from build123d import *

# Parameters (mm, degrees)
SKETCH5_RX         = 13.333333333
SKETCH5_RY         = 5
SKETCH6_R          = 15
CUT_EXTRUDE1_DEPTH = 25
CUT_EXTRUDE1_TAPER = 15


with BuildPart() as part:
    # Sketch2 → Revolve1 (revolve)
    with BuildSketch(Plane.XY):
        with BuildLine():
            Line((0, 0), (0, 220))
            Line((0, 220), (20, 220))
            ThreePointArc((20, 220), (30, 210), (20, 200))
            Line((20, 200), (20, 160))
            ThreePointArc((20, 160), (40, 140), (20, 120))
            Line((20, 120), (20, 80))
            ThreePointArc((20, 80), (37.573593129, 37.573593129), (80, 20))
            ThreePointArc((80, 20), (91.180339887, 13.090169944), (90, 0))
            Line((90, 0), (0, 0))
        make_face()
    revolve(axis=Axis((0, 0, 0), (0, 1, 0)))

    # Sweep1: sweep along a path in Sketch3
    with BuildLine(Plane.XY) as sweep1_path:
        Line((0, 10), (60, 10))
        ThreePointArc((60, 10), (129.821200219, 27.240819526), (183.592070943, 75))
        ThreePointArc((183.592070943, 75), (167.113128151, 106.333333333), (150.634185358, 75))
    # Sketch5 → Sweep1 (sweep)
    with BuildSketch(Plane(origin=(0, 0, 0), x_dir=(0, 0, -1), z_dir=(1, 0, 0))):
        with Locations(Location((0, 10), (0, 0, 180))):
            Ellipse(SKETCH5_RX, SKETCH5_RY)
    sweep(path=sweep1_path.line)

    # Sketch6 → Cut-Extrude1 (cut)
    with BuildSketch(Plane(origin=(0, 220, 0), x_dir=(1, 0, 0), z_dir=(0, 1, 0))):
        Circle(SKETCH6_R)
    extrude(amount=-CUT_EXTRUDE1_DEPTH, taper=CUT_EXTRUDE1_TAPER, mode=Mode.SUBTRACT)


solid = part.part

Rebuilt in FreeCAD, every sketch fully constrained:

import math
import FreeCAD as App
import Part
import Sketcher
from FreeCAD import Vector

doc = App.newDocument("Part")
body = doc.addObject("PartDesign::Body", "Body")

# Sketch on XY plane
sketch1 = body.newObject("Sketcher::SketchObject", "Sketch")
sketch1.AttachmentSupport = (doc.getObject("XY_Plane"), [""])
sketch1.MapMode = "FlatFace"
sketch1.addGeometry([
    Part.LineSegment(Vector(0, 220, 0), Vector(0, 0, 0)),  # 0
    Part.LineSegment(Vector(0, 0, 0), Vector(90, 0, 0)),  # 1
    Part.ArcOfCircle(Part.Circle(Vector(80, 8, 0), Vector(0, 0, 1), 12), math.radians(-37), math.radians(90)),  # 2
    Part.ArcOfCircle(Part.Circle(Vector(80, 80, 0), Vector(0, 0, 1), 60), math.radians(-180), math.radians(-90)),  # 3
    Part.LineSegment(Vector(20, 80, 0), Vector(20, 120, 0)),  # 4
    Part.ArcOfCircle(Part.Circle(Vector(20, 140, 0), Vector(0, 0, 1), 20), math.radians(-90), math.radians(90)),  # 5
    Part.LineSegment(Vector(20, 160, 0), Vector(20, 200, 0)),  # 6
    Part.ArcOfCircle(Part.Circle(Vector(20, 210, 0), Vector(0, 0, 1), 10), math.radians(-90), math.radians(90)),  # 7
    Part.LineSegment(Vector(20, 220, 0), Vector(0, 220, 0)),  # 8
], False)
sketch1.addConstraint([
    Sketcher.Constraint("Coincident", 0, 2, 1, 1),
    Sketcher.Constraint("Coincident", 1, 2, 2, 1),
    Sketcher.Constraint("Tangent", 2, 2, 3, 2),
    Sketcher.Constraint("Tangent", 3, 1, 4, 1),
    Sketcher.Constraint("Coincident", 4, 2, 5, 1),
    Sketcher.Constraint("Coincident", 5, 2, 6, 1),
    Sketcher.Constraint("Coincident", 6, 2, 7, 1),
    Sketcher.Constraint("Tangent", 7, 2, 8, 1),
    Sketcher.Constraint("Coincident", 8, 2, 0, 1),
    Sketcher.Constraint("Vertical", 0),
    Sketcher.Constraint("Horizontal", 1),
    Sketcher.Constraint("Vertical", 4),
    Sketcher.Constraint("Vertical", 6),
    Sketcher.Constraint("Horizontal", 8),
    Sketcher.Constraint("Coincident", 0, 2, -1, 1),
    Sketcher.Constraint("Vertical", 2, 3, 3, 3),
    Sketcher.Constraint("Vertical", 5, 3, 7, 3),
    Sketcher.Constraint("Vertical", 7, 3, 3, 1),
    Sketcher.Constraint("Vertical", 4, 2, 5, 2),
    Sketcher.Constraint("Equal", 4, 6),
    Sketcher.Constraint("Radius", 3, 60.0),
    Sketcher.Constraint("Radius", 5, 20.0),
    Sketcher.Constraint("Radius", 7, 10.0),
    Sketcher.Constraint("Radius", 2, 12.5),
    Sketcher.Constraint("DistanceX", 1, 1, 1, 2, 90.0),
    Sketcher.Constraint("DistanceX", 8, 2, 8, 1, 20.0),
    Sketcher.Constraint("DistanceY", 0, 2, 0, 1, 220.0),
])
revolution = body.newObject("PartDesign::Revolution", "Revolution")
revolution.Profile = sketch1
revolution.ReferenceAxis = (sketch1, ["V_Axis"])
revolution.Angle = 360

# Sketch on YZ plane
sketch2 = body.newObject("Sketcher::SketchObject", "Sketch001")
sketch2.AttachmentSupport = (doc.getObject("YZ_Plane"), [""])
sketch2.MapMode = "FlatFace"
sketch2.addGeometry(Part.Ellipse(Vector(10, 13.333333, 0), Vector(5, 0, 0), Vector(10, 0, 0)), False)
sketch2.addConstraint(Sketcher.Constraint("Block", 0))

# Sketch on XY plane
sketch3 = body.newObject("Sketcher::SketchObject", "Sketch002")
sketch3.AttachmentSupport = (doc.getObject("XY_Plane"), [""])
sketch3.MapMode = "FlatFace"
sketch3.addGeometry([
    Part.LineSegment(Vector(0, 10, 0), Vector(60, 10, 0)),
    Part.ArcOfCircle(Part.Circle(Vector(60, 160, 0), Vector(0, 0, 1), 150), math.radians(-90), math.radians(-35)),
    Part.ArcOfCircle(Part.Circle(Vector(167, 86, 0), Vector(0, 0, 1), 20), math.radians(-35), math.radians(215)),
], False)
sketch3.addConstraint([
    Sketcher.Constraint("Tangent", 0, 2, 1, 1),
    Sketcher.Constraint("Tangent", 1, 2, 2, 1),
    Sketcher.Constraint("Horizontal", 0),
    Sketcher.Constraint("PointOnObject", 0, 1, -2),
    Sketcher.Constraint("Horizontal", 1, 2, 2, 2),
    Sketcher.Constraint("Radius", 1, 150.0),
    Sketcher.Constraint("Radius", 2, 20.0),
    Sketcher.Constraint("DistanceX", 0, 1, 0, 2, 60.0),
    Sketcher.Constraint("DistanceY", -1, 1, 1, 3, 160.0),
    Sketcher.Constraint("DistanceY", -1, 1, 1, 2, 75.0),
])
doc.recompute()

additivepipe = body.newObject("PartDesign::AdditivePipe", "AdditivePipe")
additivepipe.Profile = sketch2
additivepipe.Spine = (sketch3, ["Edge1", "Edge2", "Edge3"])

# Sketch on XZ plane
sketch4 = body.newObject("Sketcher::SketchObject", "Sketch003")
sketch4.AttachmentSupport = (doc.getObject("XZ_Plane"), [""])
sketch4.MapMode = "FlatFace"
sketch4.AttachmentOffset = App.Placement(Vector(0, 0, -220), App.Rotation())
sketch4.addGeometry(Part.Circle(Vector(0, 0, 0), Vector(0, 0, 1), 15), False)
sketch4.addConstraint([
    Sketcher.Constraint("Coincident", 0, 3, -1, 1),
    Sketcher.Constraint("Diameter", 0, 30.0),
])
pocket1 = body.newObject("PartDesign::Pocket", "Pocket")
pocket1.Profile = sketch4
pocket1.Length = 25
pocket1.Reversed = True
pocket1.TaperAngle = -15

doc.recompute()
